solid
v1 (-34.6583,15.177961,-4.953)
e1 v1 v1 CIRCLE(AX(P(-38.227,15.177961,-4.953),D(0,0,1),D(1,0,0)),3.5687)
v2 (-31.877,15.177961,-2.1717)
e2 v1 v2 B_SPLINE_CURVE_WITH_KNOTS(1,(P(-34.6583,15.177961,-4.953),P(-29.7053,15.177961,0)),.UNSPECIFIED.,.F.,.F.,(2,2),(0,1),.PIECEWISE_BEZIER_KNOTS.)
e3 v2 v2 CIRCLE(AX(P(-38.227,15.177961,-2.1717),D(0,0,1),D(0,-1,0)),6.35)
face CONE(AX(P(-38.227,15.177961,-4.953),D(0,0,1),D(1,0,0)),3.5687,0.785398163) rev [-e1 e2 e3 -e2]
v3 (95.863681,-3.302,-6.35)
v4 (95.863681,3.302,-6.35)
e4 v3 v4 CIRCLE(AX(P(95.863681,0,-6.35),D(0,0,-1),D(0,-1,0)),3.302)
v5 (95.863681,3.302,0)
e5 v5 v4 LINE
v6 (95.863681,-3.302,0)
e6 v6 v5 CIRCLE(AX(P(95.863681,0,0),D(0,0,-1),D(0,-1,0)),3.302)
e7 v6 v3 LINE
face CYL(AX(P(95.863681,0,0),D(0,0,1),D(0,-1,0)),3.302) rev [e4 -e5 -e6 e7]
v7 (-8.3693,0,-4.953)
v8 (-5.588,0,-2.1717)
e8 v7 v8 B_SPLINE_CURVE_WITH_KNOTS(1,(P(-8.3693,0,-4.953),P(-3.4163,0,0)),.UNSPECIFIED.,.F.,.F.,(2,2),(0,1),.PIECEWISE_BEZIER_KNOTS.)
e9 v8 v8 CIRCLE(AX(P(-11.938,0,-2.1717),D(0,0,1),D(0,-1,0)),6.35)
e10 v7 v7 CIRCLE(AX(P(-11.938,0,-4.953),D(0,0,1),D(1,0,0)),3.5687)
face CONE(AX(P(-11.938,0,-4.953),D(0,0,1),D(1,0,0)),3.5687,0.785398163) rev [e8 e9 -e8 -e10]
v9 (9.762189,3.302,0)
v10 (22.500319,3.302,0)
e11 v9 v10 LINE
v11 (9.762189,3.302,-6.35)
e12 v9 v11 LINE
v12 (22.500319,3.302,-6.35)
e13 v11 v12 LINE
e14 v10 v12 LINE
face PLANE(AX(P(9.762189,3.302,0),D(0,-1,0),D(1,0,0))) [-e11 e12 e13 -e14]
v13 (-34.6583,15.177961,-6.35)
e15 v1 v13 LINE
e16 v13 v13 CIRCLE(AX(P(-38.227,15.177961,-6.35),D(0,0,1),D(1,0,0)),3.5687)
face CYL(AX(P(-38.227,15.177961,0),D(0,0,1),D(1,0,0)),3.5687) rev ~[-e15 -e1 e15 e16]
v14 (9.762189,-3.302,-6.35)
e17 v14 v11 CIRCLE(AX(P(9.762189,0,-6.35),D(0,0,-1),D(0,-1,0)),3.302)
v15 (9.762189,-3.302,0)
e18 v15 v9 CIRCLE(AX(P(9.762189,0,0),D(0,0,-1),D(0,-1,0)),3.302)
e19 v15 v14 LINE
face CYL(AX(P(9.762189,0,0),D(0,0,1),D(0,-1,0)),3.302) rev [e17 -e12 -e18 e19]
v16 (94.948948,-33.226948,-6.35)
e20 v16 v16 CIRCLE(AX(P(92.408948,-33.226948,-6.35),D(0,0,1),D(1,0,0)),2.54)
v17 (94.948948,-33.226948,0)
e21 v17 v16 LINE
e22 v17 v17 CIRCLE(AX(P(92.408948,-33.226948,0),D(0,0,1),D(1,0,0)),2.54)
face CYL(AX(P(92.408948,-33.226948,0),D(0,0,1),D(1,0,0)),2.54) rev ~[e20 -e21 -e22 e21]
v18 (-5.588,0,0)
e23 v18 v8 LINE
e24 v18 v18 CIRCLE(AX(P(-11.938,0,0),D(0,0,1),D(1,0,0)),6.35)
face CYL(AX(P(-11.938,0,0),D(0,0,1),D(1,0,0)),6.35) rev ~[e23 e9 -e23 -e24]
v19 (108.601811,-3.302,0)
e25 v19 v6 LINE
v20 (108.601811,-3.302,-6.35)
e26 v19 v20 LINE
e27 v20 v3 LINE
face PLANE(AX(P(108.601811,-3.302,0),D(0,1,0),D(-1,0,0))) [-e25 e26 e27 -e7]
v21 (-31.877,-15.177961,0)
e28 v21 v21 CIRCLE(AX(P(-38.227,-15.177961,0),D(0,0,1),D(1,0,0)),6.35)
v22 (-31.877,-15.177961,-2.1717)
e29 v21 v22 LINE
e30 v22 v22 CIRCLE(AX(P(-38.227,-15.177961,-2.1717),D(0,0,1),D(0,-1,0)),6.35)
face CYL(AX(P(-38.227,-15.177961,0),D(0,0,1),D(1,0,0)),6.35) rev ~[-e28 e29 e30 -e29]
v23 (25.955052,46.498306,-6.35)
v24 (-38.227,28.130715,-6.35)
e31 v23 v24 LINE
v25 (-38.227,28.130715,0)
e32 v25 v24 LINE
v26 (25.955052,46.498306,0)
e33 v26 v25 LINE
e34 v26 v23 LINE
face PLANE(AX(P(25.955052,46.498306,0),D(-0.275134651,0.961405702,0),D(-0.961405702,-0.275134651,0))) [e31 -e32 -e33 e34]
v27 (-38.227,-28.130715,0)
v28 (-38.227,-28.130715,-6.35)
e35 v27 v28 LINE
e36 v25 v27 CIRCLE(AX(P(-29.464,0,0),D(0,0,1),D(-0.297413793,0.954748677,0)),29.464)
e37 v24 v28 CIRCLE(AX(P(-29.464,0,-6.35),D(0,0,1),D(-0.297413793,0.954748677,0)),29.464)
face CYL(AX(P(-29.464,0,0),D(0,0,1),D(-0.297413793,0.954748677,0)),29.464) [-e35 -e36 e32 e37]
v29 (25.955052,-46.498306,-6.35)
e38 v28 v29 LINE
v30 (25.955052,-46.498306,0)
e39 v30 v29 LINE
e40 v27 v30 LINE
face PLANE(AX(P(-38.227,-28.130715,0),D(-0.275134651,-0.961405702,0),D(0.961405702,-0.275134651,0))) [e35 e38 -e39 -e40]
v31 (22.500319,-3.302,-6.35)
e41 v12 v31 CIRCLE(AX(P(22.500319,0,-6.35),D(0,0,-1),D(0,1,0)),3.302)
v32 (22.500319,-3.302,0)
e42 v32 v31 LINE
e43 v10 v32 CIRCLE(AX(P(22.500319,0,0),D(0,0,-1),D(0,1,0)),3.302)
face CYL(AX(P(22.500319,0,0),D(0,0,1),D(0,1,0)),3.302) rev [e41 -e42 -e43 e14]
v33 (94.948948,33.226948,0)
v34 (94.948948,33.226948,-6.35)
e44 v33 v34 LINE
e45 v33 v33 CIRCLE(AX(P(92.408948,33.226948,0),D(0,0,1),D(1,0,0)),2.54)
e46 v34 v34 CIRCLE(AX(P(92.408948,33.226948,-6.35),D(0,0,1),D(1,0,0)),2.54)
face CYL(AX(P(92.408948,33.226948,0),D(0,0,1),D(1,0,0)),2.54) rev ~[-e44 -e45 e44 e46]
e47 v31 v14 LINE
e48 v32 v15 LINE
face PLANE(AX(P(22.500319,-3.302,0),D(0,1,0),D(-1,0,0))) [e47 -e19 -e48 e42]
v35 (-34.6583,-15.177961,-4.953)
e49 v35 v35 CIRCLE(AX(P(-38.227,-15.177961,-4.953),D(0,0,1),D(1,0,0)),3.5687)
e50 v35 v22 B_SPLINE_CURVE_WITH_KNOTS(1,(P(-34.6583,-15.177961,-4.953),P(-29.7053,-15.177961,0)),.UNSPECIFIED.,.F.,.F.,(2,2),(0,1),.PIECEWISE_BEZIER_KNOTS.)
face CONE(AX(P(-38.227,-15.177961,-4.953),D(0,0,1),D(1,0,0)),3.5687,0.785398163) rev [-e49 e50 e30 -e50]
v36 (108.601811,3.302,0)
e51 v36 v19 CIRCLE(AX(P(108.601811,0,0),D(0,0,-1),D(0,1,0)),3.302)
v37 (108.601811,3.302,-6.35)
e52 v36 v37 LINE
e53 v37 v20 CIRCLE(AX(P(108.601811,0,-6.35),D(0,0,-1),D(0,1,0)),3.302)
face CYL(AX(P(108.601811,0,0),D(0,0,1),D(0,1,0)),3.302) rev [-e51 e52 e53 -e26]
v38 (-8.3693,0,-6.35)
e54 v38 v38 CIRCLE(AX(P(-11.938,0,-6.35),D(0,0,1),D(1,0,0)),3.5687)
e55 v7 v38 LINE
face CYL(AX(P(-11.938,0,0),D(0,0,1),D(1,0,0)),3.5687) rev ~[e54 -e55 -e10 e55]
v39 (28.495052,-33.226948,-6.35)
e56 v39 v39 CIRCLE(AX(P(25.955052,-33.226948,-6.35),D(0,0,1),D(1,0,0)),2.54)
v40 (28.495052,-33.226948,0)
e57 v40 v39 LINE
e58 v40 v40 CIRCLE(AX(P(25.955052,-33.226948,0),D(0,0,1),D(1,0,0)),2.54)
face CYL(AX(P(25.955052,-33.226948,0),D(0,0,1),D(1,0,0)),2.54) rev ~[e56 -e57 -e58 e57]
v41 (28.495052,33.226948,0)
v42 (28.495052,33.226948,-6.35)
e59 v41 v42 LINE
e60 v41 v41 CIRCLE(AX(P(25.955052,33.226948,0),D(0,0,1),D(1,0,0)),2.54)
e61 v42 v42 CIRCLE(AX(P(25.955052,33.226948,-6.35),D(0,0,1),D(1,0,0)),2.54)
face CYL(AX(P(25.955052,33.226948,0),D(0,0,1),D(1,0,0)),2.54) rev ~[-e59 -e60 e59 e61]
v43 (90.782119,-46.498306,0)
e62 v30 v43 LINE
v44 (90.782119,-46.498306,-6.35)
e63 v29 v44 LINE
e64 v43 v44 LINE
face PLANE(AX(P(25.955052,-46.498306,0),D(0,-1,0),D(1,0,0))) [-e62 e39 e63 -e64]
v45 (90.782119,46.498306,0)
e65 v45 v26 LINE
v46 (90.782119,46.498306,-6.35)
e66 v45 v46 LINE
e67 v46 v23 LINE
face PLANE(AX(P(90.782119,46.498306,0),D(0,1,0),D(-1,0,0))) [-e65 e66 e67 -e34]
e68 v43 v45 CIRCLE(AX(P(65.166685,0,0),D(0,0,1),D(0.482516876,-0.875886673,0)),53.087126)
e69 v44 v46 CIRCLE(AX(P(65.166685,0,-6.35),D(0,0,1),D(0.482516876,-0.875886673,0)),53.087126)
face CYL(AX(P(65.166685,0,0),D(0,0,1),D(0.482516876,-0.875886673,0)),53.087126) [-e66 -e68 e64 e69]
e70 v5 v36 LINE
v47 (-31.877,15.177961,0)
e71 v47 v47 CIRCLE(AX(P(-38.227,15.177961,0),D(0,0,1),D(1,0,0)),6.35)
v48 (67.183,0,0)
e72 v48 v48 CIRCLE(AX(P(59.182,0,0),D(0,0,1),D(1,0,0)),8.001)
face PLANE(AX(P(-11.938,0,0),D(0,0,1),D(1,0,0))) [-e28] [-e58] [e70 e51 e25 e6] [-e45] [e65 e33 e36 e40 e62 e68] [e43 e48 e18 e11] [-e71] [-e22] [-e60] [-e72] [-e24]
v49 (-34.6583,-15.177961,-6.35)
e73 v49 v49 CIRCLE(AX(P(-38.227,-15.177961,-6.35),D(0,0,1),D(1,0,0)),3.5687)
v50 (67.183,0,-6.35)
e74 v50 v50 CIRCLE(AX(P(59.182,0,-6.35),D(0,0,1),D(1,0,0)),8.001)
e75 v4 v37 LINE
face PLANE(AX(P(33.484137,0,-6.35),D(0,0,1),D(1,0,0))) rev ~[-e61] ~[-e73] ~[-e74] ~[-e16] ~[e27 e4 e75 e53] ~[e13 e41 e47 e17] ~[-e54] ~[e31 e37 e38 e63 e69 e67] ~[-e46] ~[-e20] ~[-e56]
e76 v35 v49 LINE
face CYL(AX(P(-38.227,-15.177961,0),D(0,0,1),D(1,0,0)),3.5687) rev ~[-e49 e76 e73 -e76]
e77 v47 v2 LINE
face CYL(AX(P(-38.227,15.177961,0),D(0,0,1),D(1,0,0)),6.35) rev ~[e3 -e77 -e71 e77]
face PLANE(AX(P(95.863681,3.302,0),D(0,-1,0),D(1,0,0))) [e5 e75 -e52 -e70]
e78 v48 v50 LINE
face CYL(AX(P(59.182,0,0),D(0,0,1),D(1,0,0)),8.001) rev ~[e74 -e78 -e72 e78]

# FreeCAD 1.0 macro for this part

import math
import FreeCAD as App
import Part
import Sketcher
Q = App.Units.Quantity

doc = App.newDocument("Part")
body = doc.addObject("PartDesign::Body", "Body")

# Sketch on XY plane
sketch1 = body.newObject("Sketcher::SketchObject", "Sketch")
sketch1.AttachmentSupport = (doc.getObject("XY_Plane"), [""])
sketch1.MapMode = "FlatFace"
sketch1.addGeometry([
    Part.LineSegment(App.Vector(90.8, 46.5, 0), App.Vector(26, 46.5, 0)),  # 0
    Part.LineSegment(App.Vector(26, 46.5, 0), App.Vector(-38.2, 28.1, 0)),  # 1
    Part.ArcOfCircle(Part.Circle(App.Vector(-29.5, 0, 0), App.Vector(0, 0, 1), 29.5), math.radians(107), math.radians(253)),  # 2
    Part.LineSegment(App.Vector(-38.2, -28.1, 0), App.Vector(26, -46.5, 0)),  # 3
    Part.LineSegment(App.Vector(26, -46.5, 0), App.Vector(90.8, -46.5, 0)),  # 4
    Part.ArcOfCircle(Part.Circle(App.Vector(65.2, 0, 0), App.Vector(0, 0, 1), 53.1), math.radians(-61), math.radians(61)),  # 5
    Part.Circle(App.Vector(26, -33.2, 0), App.Vector(0, 0, 1), 2.5),  # 6
    Part.Circle(App.Vector(-38.2, -15.2, 0), App.Vector(0, 0, 1), 3.6),  # 7
    Part.Circle(App.Vector(92.4, -33.2, 0), App.Vector(0, 0, 1), 2.5),  # 8
    Part.Circle(App.Vector(-11.9, 0, 0), App.Vector(0, 0, 1), 3.6),  # 9
    Part.Circle(App.Vector(-38.2, 15.2, 0), App.Vector(0, 0, 1), 3.6),  # 10
    Part.LineSegment(App.Vector(9.8, 3.3, 0), App.Vector(22.5, 3.3, 0)),  # 11
    Part.ArcOfCircle(Part.Circle(App.Vector(22.5, 0, 0), App.Vector(0, 0, 1), 3.3), math.radians(-90), math.radians(90)),  # 12
    Part.LineSegment(App.Vector(22.5, -3.3, 0), App.Vector(9.8, -3.3, 0)),  # 13
    Part.ArcOfCircle(Part.Circle(App.Vector(9.8, 0, 0), App.Vector(0, 0, 1), 3.3), math.radians(90), math.radians(270)),  # 14
    Part.Circle(App.Vector(26, 33.2, 0), App.Vector(0, 0, 1), 2.5),  # 15
    Part.Circle(App.Vector(59.2, 0, 0), App.Vector(0, 0, 1), 8),  # 16
    Part.LineSegment(App.Vector(108.6, -3.3, 0), App.Vector(95.9, -3.3, 0)),  # 17
    Part.ArcOfCircle(Part.Circle(App.Vector(95.9, 0, 0), App.Vector(0, 0, 1), 3.3), math.radians(90), math.radians(270)),  # 18
    Part.LineSegment(App.Vector(95.9, 3.3, 0), App.Vector(108.6, 3.3, 0)),  # 19
    Part.ArcOfCircle(Part.Circle(App.Vector(108.6, 0, 0), App.Vector(0, 0, 1), 3.3), math.radians(-90), math.radians(90)),  # 20
    Part.Circle(App.Vector(92.4, 33.2, 0), App.Vector(0, 0, 1), 2.5),  # 21
], False)
sketch1.addConstraint([
    Sketcher.Constraint("Coincident", 0, 2, 1, 1),
    Sketcher.Constraint("Coincident", 1, 2, 2, 1),
    Sketcher.Constraint("Coincident", 2, 2, 3, 1),
    Sketcher.Constraint("Coincident", 3, 2, 4, 1),
    Sketcher.Constraint("Coincident", 4, 2, 5, 1),
    Sketcher.Constraint("Coincident", 5, 2, 0, 1),
    Sketcher.Constraint("Tangent", 11, 2, 12, 2),
    Sketcher.Constraint("Tangent", 12, 1, 13, 1),
    Sketcher.Constraint("Tangent", 13, 2, 14, 2),
    Sketcher.Constraint("Tangent", 14, 1, 11, 1),
    Sketcher.Constraint("Tangent", 17, 2, 18, 2),
    Sketcher.Constraint("Tangent", 18, 1, 19, 1),
    Sketcher.Constraint("Tangent", 19, 2, 20, 2),
    Sketcher.Constraint("Tangent", 20, 1, 17, 1),
    Sketcher.Constraint("Horizontal", 0),
    Sketcher.Constraint("Horizontal", 4),
    Sketcher.Constraint("Horizontal", 11),
    Sketcher.Constraint("Horizontal", 13),
    Sketcher.Constraint("Horizontal", 17),
    Sketcher.Constraint("Horizontal", 19),
    Sketcher.Constraint("Equal", 6, 8),
    Sketcher.Constraint("Equal", 7, 9),
    Sketcher.Constraint("Equal", 9, 10),
    Sketcher.Constraint("Equal", 8, 15),
    Sketcher.Constraint("Equal", 14, 18),
    Sketcher.Constraint("Equal", 15, 21),
    Sketcher.Constraint("Symmetric", 7, 3, 10, 3, -1),
    Sketcher.Constraint("Symmetric", 6, 3, 15, 3, -1),
    Sketcher.Constraint("Symmetric", 8, 3, 21, 3, -1),
    Sketcher.Constraint("Symmetric", 1, 2, 2, 2, -1),
    Sketcher.Constraint("Symmetric", 0, 2, 3, 2, -1),
    Sketcher.Constraint("PointOnObject", 5, 3, -1),
    Sketcher.Constraint("PointOnObject", 9, 3, -1),
    Sketcher.Constraint("PointOnObject", 12, 3, -1),
    Sketcher.Constraint("PointOnObject", 16, 3, -1),
    Sketcher.Constraint("PointOnObject", 18, 3, -1),
    Sketcher.Constraint("Horizontal", 6, 3, 8, 3),
    Sketcher.Constraint("Vertical", 15, 3, 0, 2),
    Sketcher.Constraint("Vertical", 10, 3, 1, 2),
    Sketcher.Constraint("Equal", 13, 17),
    Sketcher.Constraint("Diameter", 6, Q("0.2 in")),
    Sketcher.Constraint("Diameter", 16, Q("0.63 in")),
    Sketcher.Constraint("Radius", 2, Q("1.16 in")),
    Sketcher.Constraint("Radius", 12, Q("0.13 in")),
    Sketcher.Constraint("Diameter", 7, Q("0.281 in")),
    Sketcher.Constraint("DistanceX", 2, 3, -1, 1, Q("1.16 in")),
    Sketcher.Constraint("DistanceX", 9, 3, -1, 1, Q("0.47 in")),
    Sketcher.Constraint("DistanceX", -1, 1, 16, 3, Q("2.33 in")),
    Sketcher.Constraint("DistanceX", 7, 3, -1, 1, Q("1.505 in")),
    Sketcher.Constraint("Radius", 5, 53.087126),
    Sketcher.Constraint("DistanceX", 11, 1, 11, 2, 12.73813),
    Sketcher.Constraint("Distance", 1, 66.758552),
    Sketcher.Constraint("DistanceX", 0, 2, 0, 1, 64.827067),
    Sketcher.Constraint("DistanceY", 7, 3, -1, 1, 15.177961),
    Sketcher.Constraint("DistanceX", -1, 1, 12, 3, 22.500319),
    Sketcher.Constraint("DistanceX", -1, 1, 18, 3, 95.863681),
    Sketcher.Constraint("DistanceX", -1, 1, 4, 2, 90.782119),
    Sketcher.Constraint("DistanceY", 6, 3, 10, 3, 48.404909),
    Sketcher.Constraint("DistanceX", 4, 2, 8, 3, 1.626829),
])
pad1 = body.newObject("PartDesign::Pad", "Pad")
pad1.Profile = sketch1
pad1.Length = Q("0.25 in")
pad1.Reversed = True

# Sketch on XY plane
sketch2 = body.newObject("Sketcher::SketchObject", "Sketch001")
sketch2.AttachmentSupport = (doc.getObject("XY_Plane"), [""])
sketch2.MapMode = "FlatFace"
sketch2.AttachmentOffset = App.Placement(App.Vector(0, 0, -0.195 * 25.4), App.Rotation())
sketch2.addGeometry([
    Part.Circle(App.Vector(-38.2, -15.2, 0), App.Vector(0, 0, 1), 3.6),
    Part.Circle(App.Vector(-38.2, 15.2, 0), App.Vector(0, 0, 1), 3.6),
    Part.Circle(App.Vector(-11.9, 0, 0), App.Vector(0, 0, 1), 3.6),
], False)
sketch2.addConstraint([
    Sketcher.Constraint("Equal", 0, 1),
    Sketcher.Constraint("Equal", 1, 2),
    Sketcher.Constraint("Symmetric", 0, 3, 1, 3, -1),
    Sketcher.Constraint("PointOnObject", 2, 3, -1),
    Sketcher.Constraint("Diameter", 0, Q("0.281 in")),
    Sketcher.Constraint("DistanceX", 2, 3, -1, 1, Q("0.47 in")),
    Sketcher.Constraint("DistanceX", 0, 3, -1, 1, Q("1.505 in")),
    Sketcher.Constraint("DistanceY", 0, 3, -1, 1, 15.177961),
])
pocket1 = body.newObject("PartDesign::Pocket", "Pocket")
pocket1.Profile = sketch2
pocket1.Type = "ThroughAll"
pocket1.Reversed = True
pocket1.TaperAngle = 45

# Sketch on XY plane
sketch3 = body.newObject("Sketcher::SketchObject", "Sketch002")
sketch3.AttachmentSupport = (doc.getObject("XY_Plane"), [""])
sketch3.MapMode = "FlatFace"
sketch3.addGeometry([
    Part.Circle(App.Vector(-12, 0, 0), App.Vector(0, 0, 1), 9),  # 0
    Part.Circle(App.Vector(-12, 0, 0), App.Vector(0, 0, 1), 6),  # 1
    Part.Circle(App.Vector(-38, 15, 0), App.Vector(0, 0, 1), 9),  # 2
    Part.Circle(App.Vector(-38, 15, 0), App.Vector(0, 0, 1), 6),  # 3
    Part.Circle(App.Vector(-38, -15, 0), App.Vector(0, 0, 1), 9),  # 4
    Part.Circle(App.Vector(-38, -15, 0), App.Vector(0, 0, 1), 6),  # 5
], False)
sketch3.addConstraint([
    Sketcher.Constraint("Coincident", 1, 3, 0, 3),
    Sketcher.Constraint("Coincident", 3, 3, 2, 3),
    Sketcher.Constraint("Coincident", 5, 3, 4, 3),
    Sketcher.Constraint("Equal", 0, 2),
    Sketcher.Constraint("Equal", 1, 3),
    Sketcher.Constraint("Equal", 2, 4),
    Sketcher.Constraint("Equal", 3, 5),
    Sketcher.Constraint("Symmetric", 2, 3, 4, 3, -1),
    Sketcher.Constraint("PointOnObject", 0, 3, -1),
    Sketcher.Constraint("Diameter", 1, Q("0.5 in")),
    Sketcher.Constraint("Diameter", 0, Q("0.671 in")),
    Sketcher.Constraint("DistanceX", 0, 3, -1, 1, Q("0.47 in")),
    Sketcher.Constraint("DistanceX", 2, 3, -1, 1, Q("1.505 in")),
    Sketcher.Constraint("DistanceY", -1, 1, 2, 3, 15.177961),
])
pad2 = body.newObject("PartDesign::Pad", "Pad001")
pad2.Profile = sketch3
pad2.Type = "UpToLast"
pad2.Reversed = True

doc.recompute()
